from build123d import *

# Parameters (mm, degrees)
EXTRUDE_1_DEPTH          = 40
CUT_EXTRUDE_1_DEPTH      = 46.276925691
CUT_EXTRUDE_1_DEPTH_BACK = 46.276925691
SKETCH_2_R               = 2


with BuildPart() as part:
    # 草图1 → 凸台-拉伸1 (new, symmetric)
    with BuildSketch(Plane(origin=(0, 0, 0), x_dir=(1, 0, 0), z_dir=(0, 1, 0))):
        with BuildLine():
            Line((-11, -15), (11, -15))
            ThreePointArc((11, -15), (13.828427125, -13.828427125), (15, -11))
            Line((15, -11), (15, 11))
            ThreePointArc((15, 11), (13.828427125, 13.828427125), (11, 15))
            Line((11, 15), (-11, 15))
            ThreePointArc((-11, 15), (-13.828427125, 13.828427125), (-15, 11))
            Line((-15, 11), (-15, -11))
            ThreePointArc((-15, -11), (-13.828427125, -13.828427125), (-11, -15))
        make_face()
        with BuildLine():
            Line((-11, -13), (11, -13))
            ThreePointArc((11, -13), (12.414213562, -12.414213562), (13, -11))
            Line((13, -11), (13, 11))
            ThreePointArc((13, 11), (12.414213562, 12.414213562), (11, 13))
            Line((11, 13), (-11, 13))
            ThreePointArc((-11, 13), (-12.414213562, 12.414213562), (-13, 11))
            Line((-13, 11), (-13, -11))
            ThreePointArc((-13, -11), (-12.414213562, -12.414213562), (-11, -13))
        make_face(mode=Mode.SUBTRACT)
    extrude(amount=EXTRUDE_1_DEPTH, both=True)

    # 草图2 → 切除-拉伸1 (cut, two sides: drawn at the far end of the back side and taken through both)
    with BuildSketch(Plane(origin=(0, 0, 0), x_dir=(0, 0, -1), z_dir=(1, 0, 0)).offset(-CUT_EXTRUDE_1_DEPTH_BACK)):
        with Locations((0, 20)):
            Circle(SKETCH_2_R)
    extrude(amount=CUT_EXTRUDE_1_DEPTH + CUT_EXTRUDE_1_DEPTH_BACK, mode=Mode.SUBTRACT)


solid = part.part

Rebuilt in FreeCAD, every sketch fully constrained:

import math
import FreeCAD as App
import Part
import Sketcher

doc = App.newDocument("Part")
body = doc.addObject("PartDesign::Body", "Body")

# Sketch on XZ plane
sketch1 = body.newObject("Sketcher::SketchObject", "Sketch")
sketch1.AttachmentSupport = (doc.getObject("XZ_Plane"), [""])
sketch1.MapMode = "FlatFace"
sketch1.addGeometry(Part.LineSegment(App.Vector(-11, 15, 0), App.Vector(11, 15, 0)), False)
sketch1.addGeometry(Part.ArcOfCircle(Part.Circle(App.Vector(11, 11, 0), App.Vector(0, 0, 1), 4), math.radians(0), math.radians(90)), False)
sketch1.addGeometry(Part.LineSegment(App.Vector(15, 11, 0), App.Vector(15, -11, 0)), False)
sketch1.addGeometry(Part.ArcOfCircle(Part.Circle(App.Vector(11, -11, 0), App.Vector(0, 0, 1), 4), math.radians(-90), math.radians(0)), False)
sketch1.addGeometry(Part.LineSegment(App.Vector(11, -15, 0), App.Vector(-11, -15, 0)), False)
sketch1.addGeometry(Part.ArcOfCircle(Part.Circle(App.Vector(-11, -11, 0), App.Vector(0, 0, 1), 4), math.radians(180), math.radians(270)), False)
sketch1.addGeometry(Part.LineSegment(App.Vector(-15, -11, 0), App.Vector(-15, 11, 0)), False)
sketch1.addGeometry(Part.ArcOfCircle(Part.Circle(App.Vector(-11, 11, 0), App.Vector(0, 0, 1), 4), math.radians(90), math.radians(180)), False)
sketch1.addGeometry(Part.LineSegment(App.Vector(11, 13, 0), App.Vector(-11, 13, 0)), False)
sketch1.addGeometry(Part.ArcOfCircle(Part.Circle(App.Vector(-11, 11, 0), App.Vector(0, 0, 1), 2), math.radians(90), math.radians(180)), False)
sketch1.addGeometry(Part.LineSegment(App.Vector(-13, 11, 0), App.Vector(-13, -11, 0)), False)
sketch1.addGeometry(Part.ArcOfCircle(Part.Circle(App.Vector(-11, -11, 0), App.Vector(0, 0, 1), 2), math.radians(-180), math.radians(-90)), False)
sketch1.addGeometry(Part.LineSegment(App.Vector(-11, -13, 0), App.Vector(11, -13, 0)), False)
sketch1.addGeometry(Part.ArcOfCircle(Part.Circle(App.Vector(11, -11, 0), App.Vector(0, 0, 1), 2), math.radians(-90), math.radians(0)), False)
sketch1.addGeometry(Part.LineSegment(App.Vector(13, -11, 0), App.Vector(13, 11, 0)), False)
sketch1.addGeometry(Part.ArcOfCircle(Part.Circle(App.Vector(11, 11, 0), App.Vector(0, 0, 1), 2), math.radians(0), math.radians(90)), False)
sketch1.addConstraint(Sketcher.Constraint("Tangent", 0, 2, 1, 2))
sketch1.addConstraint(Sketcher.Constraint("Tangent", 1, 1, 2, 1))
sketch1.addConstraint(Sketcher.Constraint("Tangent", 2, 2, 3, 2))
sketch1.addConstraint(Sketcher.Constraint("Tangent", 3, 1, 4, 1))
sketch1.addConstraint(Sketcher.Constraint("Tangent", 4, 2, 5, 2))
sketch1.addConstraint(Sketcher.Constraint("Tangent", 5, 1, 6, 1))
sketch1.addConstraint(Sketcher.Constraint("Tangent", 6, 2, 7, 2))
sketch1.addConstraint(Sketcher.Constraint("Tangent", 7, 1, 0, 1))
sketch1.addConstraint(Sketcher.Constraint("Tangent", 8, 2, 9, 1))
sketch1.addConstraint(Sketcher.Constraint("Tangent", 9, 2, 10, 1))
sketch1.addConstraint(Sketcher.Constraint("Tangent", 10, 2, 11, 1))
sketch1.addConstraint(Sketcher.Constraint("Tangent", 11, 2, 12, 1))
sketch1.addConstraint(Sketcher.Constraint("Tangent", 12, 2, 13, 1))
sketch1.addConstraint(Sketcher.Constraint("Tangent", 13, 2, 14, 1))
sketch1.addConstraint(Sketcher.Constraint("Tangent", 14, 2, 15, 1))
sketch1.addConstraint(Sketcher.Constraint("Tangent", 15, 2, 8, 1))
sketch1.addConstraint(Sketcher.Constraint("Horizontal", 0))
sketch1.addConstraint(Sketcher.Constraint("Vertical", 2))
sketch1.addConstraint(Sketcher.Constraint("Horizontal", 4))
sketch1.addConstraint(Sketcher.Constraint("Vertical", 6))
sketch1.addConstraint(Sketcher.Constraint("Horizontal", 8))
sketch1.addConstraint(Sketcher.Constraint("Vertical", 10))
sketch1.addConstraint(Sketcher.Constraint("Horizontal", 12))
sketch1.addConstraint(Sketcher.Constraint("Vertical", 14))
sketch1.addConstraint(Sketcher.Constraint("Coincident", 9, 3, 7, 3))
sketch1.addConstraint(Sketcher.Constraint("Coincident", 11, 3, 5, 3))
sketch1.addConstraint(Sketcher.Constraint("Coincident", 13, 3, 3, 3))
sketch1.addConstraint(Sketcher.Constraint("Equal", 1, 3))
sketch1.addConstraint(Sketcher.Constraint("Equal", 3, 5))
sketch1.addConstraint(Sketcher.Constraint("Equal", 5, 7))
sketch1.addConstraint(Sketcher.Constraint("Equal", 13, 15))
sketch1.addConstraint(Sketcher.Constraint("Symmetric", 1, 3, 5, 3, -1, 1))
sketch1.addConstraint(Sketcher.Constraint("Equal", 12, 2))
sketch1.addConstraint(Sketcher.Constraint("Radius", 1, 4.0))
sketch1.addConstraint(Sketcher.Constraint("Radius", 9, 2.0))
sketch1.addConstraint(Sketcher.Constraint("DistanceX", 0, 1, 0, 2, 22.0))
pad1 = body.newObject("PartDesign::Pad", "Pad")
pad1.Profile = sketch1
pad1.Length = 80
pad1.Midplane = True

# Sketch on YZ plane
sketch2 = body.newObject("Sketcher::SketchObject", "Sketch001")
sketch2.AttachmentSupport = (doc.getObject("YZ_Plane"), [""])
sketch2.MapMode = "FlatFace"
sketch2.addGeometry(Part.Circle(App.Vector(20, 0, 0), App.Vector(0, 0, 1), 2), False)
sketch2.addConstraint(Sketcher.Constraint("PointOnObject", 0, 3, -1))
sketch2.addConstraint(Sketcher.Constraint("Diameter", 0, 4.0))
sketch2.addConstraint(Sketcher.Constraint("DistanceX", -1, 1, 0, 3, 20.0))
pocket1 = body.newObject("PartDesign::Pocket", "Pocket")
pocket1.Profile = sketch2
pocket1.Type = "ThroughAll"
pocket1.Midplane = True

doc.recompute()
